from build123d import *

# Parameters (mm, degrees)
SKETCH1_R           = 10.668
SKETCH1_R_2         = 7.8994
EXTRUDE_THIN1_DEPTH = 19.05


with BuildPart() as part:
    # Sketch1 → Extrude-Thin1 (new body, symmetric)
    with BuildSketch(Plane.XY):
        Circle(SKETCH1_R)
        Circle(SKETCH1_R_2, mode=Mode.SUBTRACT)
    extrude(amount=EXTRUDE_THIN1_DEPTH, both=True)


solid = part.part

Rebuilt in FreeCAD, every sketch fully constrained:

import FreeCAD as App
import Part
import Sketcher
Q = App.Units.Quantity

doc = App.newDocument("Part")
params = doc.addObject("Spreadsheet::Sheet", "Params")
for row, (alias, value) in enumerate([
    ("sketch1_diameter", "0.84 in"),
    ("sketch1_diameter2", "0.622 in"),
    ("pad1_length", "1.5 in"),
], start=1):
    params.set(f"A{row}", alias)
    params.set(f"B{row}", "=" + value)
    params.setAlias(f"B{row}", alias)

body = doc.addObject("PartDesign::Body", "Body")

sketch1 = body.newObject("Sketcher::SketchObject", "Sketch")
sketch1.AttachmentSupport = (doc.getObject("XY_Plane"), [""])
sketch1.MapMode = "FlatFace"
sketch1.addGeometry([
    Part.Circle(App.Vector(0, 0, 0), App.Vector(0, 0, 1), 10.668),
    Part.Circle(App.Vector(0, 0, 0), App.Vector(0, 0, 1), 7.8994),
], False)
sketch1.addConstraint([
    Sketcher.Constraint("Coincident", 0, 3, -1, 1),
    Sketcher.Constraint("Coincident", 1, 3, -1, 1),
    Sketcher.Constraint("Diameter", 0, Q("0.84 in")),
    Sketcher.Constraint("Diameter", 1, Q("0.622 in")),
])
sketch1.setExpression("Constraints[2]", "Params.sketch1_diameter")
sketch1.setExpression("Constraints[3]", "Params.sketch1_diameter2")
pad1 = body.newObject("PartDesign::Pad", "Pad")
pad1.Profile = sketch1
pad1.setExpression("Length", "Params.pad1_length")
pad1.Midplane = True

doc.recompute()
